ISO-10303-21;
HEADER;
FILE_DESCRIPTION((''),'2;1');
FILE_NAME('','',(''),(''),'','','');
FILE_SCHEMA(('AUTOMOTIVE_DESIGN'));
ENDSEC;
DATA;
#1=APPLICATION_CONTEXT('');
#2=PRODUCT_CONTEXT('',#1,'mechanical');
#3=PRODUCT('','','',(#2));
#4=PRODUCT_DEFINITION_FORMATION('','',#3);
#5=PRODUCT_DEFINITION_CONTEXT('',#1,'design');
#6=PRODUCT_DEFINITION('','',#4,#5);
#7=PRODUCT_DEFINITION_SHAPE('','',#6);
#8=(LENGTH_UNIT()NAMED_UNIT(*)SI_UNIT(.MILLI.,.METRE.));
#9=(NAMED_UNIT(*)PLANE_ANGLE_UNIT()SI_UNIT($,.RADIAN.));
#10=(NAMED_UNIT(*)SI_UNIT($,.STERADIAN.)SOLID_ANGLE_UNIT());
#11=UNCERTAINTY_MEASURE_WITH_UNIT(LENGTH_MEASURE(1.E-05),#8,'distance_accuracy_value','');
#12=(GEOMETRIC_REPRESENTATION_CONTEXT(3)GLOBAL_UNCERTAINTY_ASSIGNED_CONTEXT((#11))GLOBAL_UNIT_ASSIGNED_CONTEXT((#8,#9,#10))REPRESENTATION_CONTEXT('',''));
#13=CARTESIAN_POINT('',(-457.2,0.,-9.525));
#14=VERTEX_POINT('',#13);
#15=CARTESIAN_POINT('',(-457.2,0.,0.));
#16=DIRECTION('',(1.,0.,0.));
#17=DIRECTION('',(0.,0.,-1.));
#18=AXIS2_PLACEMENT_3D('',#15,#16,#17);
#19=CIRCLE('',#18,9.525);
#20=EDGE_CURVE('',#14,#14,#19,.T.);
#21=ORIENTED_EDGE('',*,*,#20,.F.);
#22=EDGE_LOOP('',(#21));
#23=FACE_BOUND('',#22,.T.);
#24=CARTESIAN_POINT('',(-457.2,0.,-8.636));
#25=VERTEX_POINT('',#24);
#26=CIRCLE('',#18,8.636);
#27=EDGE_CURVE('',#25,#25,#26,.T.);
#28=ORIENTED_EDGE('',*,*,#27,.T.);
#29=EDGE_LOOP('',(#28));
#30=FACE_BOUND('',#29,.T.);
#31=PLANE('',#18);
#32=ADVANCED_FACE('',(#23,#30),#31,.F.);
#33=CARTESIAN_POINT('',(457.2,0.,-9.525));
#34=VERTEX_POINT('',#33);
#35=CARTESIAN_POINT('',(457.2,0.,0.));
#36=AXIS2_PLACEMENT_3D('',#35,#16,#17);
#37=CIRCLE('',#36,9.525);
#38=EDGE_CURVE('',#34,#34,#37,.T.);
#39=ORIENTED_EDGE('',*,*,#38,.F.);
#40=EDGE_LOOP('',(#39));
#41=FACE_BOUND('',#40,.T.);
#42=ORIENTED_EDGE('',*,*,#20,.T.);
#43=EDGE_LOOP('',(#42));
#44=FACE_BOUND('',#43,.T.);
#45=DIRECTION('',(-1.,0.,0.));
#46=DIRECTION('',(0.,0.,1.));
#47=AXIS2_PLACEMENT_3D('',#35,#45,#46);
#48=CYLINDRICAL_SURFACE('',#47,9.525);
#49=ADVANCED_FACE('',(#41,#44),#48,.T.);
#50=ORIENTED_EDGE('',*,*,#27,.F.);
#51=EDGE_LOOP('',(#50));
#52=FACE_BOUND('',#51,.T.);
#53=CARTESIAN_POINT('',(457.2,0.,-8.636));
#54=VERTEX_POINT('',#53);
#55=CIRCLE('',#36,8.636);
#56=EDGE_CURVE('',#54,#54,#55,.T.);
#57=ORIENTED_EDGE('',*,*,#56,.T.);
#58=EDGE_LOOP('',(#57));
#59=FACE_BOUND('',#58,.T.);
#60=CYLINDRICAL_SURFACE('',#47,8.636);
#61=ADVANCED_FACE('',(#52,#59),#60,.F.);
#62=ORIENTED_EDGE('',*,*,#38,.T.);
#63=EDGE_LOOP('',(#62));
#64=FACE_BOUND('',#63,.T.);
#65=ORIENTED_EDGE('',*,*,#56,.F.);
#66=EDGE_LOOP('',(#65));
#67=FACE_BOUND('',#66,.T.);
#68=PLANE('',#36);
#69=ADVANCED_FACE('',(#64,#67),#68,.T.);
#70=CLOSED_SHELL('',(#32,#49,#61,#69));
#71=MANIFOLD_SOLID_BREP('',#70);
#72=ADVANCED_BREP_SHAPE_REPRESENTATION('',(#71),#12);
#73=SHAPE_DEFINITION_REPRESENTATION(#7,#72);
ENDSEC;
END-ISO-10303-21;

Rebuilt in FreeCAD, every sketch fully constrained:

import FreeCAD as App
import Part
import Sketcher
from FreeCAD import Vector
Q = App.Units.Quantity

doc = App.newDocument("Part")
body = doc.addObject("PartDesign::Body", "Body")

# Sketch on YZ plane
sketch1 = doc.addObject("Sketcher::SketchObject", "Sketch")
body.addObject(sketch1)
sketch1.AttachmentSupport = (doc.YZ_Plane, [""])
sketch1.MapMode = "FlatFace"
sketch1.addGeometry([
    Part.Circle(Vector(0, 0, 0), Vector(0, 0, 1), 10),
    Part.Circle(Vector(0, 0, 0), Vector(0, 0, 1), 9),
], False)
sketch1.addConstraint([
    Sketcher.Constraint("Coincident", 0, 3, -1, 1),
    Sketcher.Constraint("Coincident", 1, 3, -1, 1),
    Sketcher.Constraint("Diameter", 0, Q("0.75 in")),
    Sketcher.Constraint("Diameter", 1, Q("0.68 in")),
])
pad1 = doc.addObject("PartDesign::Pad", "Pad")
body.addObject(pad1)
pad1.Profile = sketch1
pad1.Length = Q("36 in")
pad1.Midplane = True

doc.recompute()
